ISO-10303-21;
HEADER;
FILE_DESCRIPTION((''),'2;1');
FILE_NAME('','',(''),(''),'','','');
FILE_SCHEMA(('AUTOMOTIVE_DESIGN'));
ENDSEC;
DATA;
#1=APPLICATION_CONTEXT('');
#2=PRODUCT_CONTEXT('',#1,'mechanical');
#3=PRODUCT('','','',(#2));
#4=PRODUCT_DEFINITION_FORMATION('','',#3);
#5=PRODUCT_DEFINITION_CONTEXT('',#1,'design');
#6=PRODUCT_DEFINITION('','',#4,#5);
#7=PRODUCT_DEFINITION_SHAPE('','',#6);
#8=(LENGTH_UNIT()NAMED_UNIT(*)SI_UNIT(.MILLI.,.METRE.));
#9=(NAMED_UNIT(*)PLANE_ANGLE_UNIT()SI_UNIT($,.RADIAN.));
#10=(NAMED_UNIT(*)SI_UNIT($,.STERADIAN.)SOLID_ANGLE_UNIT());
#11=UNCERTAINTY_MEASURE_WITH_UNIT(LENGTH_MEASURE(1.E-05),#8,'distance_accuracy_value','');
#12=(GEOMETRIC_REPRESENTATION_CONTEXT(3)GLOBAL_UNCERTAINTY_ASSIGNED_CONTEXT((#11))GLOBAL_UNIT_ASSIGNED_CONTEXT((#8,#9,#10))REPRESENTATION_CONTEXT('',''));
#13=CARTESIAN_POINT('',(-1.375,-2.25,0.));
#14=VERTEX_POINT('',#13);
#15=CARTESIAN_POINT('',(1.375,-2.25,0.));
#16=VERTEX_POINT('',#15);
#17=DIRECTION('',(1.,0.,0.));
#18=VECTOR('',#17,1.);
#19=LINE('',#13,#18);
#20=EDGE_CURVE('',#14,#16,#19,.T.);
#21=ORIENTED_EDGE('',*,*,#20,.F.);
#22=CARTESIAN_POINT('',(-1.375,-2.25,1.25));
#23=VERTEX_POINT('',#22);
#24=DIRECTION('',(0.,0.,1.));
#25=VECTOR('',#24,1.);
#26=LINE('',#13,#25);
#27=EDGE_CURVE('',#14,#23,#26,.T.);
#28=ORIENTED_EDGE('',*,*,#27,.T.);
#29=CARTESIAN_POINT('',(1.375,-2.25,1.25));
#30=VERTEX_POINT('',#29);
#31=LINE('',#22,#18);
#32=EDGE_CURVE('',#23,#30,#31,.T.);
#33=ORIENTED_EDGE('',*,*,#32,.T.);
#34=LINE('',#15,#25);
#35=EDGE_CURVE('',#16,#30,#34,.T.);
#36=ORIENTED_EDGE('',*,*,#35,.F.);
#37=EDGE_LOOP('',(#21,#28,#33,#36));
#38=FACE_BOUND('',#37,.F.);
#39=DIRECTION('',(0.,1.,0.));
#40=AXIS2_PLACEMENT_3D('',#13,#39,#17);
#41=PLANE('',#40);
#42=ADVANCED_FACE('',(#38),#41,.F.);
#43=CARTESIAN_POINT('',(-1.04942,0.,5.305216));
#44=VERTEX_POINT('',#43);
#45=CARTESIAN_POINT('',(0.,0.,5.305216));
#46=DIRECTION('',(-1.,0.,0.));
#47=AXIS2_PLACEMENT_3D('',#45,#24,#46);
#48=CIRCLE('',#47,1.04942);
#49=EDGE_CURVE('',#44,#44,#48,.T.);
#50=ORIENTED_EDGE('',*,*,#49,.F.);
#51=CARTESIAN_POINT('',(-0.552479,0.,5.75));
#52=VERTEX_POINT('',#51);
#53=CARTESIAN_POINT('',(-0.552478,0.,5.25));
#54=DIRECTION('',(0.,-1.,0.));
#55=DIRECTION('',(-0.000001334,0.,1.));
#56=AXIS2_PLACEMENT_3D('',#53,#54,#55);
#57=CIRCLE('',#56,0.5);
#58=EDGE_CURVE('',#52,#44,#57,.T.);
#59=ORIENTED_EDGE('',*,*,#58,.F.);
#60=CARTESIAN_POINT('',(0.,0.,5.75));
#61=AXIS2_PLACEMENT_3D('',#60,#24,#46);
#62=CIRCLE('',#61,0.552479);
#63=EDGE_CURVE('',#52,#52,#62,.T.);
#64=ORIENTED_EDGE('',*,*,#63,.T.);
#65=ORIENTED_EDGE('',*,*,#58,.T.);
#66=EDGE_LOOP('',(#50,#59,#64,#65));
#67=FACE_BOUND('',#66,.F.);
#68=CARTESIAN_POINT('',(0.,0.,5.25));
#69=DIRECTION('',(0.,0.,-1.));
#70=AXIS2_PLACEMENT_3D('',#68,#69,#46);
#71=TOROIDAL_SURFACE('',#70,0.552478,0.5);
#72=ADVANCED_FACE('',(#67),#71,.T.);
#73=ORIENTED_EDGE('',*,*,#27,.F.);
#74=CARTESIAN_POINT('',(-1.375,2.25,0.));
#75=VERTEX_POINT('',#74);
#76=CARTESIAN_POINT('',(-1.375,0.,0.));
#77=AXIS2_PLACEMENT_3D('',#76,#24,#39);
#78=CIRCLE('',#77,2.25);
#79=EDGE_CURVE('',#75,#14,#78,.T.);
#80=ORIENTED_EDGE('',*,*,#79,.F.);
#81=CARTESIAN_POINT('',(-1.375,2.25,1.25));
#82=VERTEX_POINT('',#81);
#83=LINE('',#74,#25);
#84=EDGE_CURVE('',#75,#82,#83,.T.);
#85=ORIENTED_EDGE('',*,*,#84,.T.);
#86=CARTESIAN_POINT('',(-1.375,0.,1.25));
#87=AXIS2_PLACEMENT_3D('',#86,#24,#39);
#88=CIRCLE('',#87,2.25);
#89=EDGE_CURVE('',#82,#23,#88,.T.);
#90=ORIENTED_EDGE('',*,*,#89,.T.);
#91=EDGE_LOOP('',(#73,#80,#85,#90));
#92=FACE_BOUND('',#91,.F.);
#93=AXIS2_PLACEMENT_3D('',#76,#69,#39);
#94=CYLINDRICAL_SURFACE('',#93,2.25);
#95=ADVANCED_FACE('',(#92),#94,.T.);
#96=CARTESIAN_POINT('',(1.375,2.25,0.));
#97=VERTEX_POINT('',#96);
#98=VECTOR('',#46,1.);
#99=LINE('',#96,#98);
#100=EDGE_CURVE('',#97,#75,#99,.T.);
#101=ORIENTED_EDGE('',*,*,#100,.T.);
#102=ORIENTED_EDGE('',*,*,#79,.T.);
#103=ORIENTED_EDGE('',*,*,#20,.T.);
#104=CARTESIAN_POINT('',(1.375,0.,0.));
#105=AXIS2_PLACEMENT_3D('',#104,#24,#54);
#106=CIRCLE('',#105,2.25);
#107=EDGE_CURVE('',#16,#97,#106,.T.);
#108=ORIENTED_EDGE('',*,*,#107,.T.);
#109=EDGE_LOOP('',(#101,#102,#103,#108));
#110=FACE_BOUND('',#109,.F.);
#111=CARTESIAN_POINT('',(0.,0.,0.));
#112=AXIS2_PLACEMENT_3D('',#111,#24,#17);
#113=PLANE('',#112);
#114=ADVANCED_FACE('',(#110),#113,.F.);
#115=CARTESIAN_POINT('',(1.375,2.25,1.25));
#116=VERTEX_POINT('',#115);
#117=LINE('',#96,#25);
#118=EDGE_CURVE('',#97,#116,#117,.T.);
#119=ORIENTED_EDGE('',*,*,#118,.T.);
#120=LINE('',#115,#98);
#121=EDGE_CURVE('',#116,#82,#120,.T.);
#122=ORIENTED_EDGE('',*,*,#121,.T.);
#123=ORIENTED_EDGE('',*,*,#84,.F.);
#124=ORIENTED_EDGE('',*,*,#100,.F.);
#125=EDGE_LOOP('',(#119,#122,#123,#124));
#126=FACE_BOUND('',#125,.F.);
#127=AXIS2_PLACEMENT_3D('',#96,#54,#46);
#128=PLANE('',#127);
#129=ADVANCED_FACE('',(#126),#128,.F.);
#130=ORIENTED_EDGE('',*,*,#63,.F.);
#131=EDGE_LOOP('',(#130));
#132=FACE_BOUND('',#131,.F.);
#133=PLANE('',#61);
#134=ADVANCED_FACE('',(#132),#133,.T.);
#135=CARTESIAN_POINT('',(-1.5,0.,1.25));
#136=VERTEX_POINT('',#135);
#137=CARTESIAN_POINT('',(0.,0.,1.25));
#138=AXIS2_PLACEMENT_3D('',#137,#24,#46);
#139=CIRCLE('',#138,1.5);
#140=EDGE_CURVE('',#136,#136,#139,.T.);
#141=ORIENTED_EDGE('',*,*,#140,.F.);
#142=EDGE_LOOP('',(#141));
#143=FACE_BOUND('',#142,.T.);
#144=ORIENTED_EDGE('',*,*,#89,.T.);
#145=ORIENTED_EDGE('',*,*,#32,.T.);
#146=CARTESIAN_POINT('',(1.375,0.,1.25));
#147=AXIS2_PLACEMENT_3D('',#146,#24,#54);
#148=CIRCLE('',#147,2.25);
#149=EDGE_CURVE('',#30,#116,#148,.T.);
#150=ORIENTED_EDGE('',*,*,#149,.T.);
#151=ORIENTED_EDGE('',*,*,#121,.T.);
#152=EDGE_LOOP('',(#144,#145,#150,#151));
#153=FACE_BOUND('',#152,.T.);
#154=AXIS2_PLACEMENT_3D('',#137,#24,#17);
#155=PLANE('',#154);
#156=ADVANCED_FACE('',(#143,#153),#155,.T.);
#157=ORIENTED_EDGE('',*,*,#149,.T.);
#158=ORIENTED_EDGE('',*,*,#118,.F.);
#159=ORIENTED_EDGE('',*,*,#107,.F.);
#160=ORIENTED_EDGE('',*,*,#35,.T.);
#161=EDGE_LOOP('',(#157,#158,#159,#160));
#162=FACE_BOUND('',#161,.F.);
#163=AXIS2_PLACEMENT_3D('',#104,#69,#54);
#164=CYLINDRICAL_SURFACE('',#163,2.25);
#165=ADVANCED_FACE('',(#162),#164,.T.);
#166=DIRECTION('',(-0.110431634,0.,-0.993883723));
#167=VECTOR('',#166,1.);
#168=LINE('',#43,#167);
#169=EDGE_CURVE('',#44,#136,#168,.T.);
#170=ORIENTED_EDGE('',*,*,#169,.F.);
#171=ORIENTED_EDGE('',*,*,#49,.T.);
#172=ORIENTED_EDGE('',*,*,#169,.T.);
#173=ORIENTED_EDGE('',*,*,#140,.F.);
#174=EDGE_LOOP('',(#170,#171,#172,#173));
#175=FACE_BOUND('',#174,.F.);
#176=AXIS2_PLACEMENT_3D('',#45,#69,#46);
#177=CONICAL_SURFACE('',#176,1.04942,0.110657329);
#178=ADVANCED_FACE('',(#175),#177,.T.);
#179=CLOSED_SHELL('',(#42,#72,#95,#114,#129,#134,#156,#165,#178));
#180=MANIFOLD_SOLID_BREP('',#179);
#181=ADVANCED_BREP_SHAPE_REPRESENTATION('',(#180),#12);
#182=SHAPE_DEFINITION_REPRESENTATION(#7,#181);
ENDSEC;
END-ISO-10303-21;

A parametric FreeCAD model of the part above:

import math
import FreeCAD as App
import Part
import Sketcher

V = App.Vector

doc = App.newDocument("Part")
body = doc.addObject("PartDesign::Body", "Body")

sketch1 = doc.addObject("Sketcher::SketchObject", "Sketch")
body.addObject(sketch1)
sketch1.AttachmentSupport = (doc.XY_Plane, [""])
sketch1.MapMode = "FlatFace"
sketch1.addGeometry(Part.LineSegment(V(-1.4, -2.2, 0), V(1.4, -2.2, 0)), False)
sketch1.addGeometry(Part.ArcOfCircle(Part.Circle(V(1.4, 0, 0), V(0, 0, 1), 2.2), math.radians(-90), math.radians(90)), False)
sketch1.addGeometry(Part.LineSegment(V(1.4, 2.2, 0), V(-1.4, 2.2, 0)), False)
sketch1.addGeometry(Part.ArcOfCircle(Part.Circle(V(-1.4, 0, 0), V(0, 0, 1), 2.2), math.radians(90), math.radians(270)), False)
sketch1.addConstraint(Sketcher.Constraint("Tangent", 0, 2, 1, 1))
sketch1.addConstraint(Sketcher.Constraint("Tangent", 1, 2, 2, 1))
sketch1.addConstraint(Sketcher.Constraint("Tangent", 2, 2, 3, 1))
sketch1.addConstraint(Sketcher.Constraint("Tangent", 3, 2, 0, 1))
sketch1.addConstraint(Sketcher.Constraint("Horizontal", 0))
sketch1.addConstraint(Sketcher.Constraint("Horizontal", 2))
sketch1.addConstraint(Sketcher.Constraint("Symmetric", 1, 3, 3, 3, -1, 1))
sketch1.addConstraint(Sketcher.Constraint("Radius", 1, 2.25))
sketch1.addConstraint(Sketcher.Constraint("DistanceX", 0, 1, 0, 2, 2.75))
pad1 = doc.addObject("PartDesign::Pad", "Pad")
body.addObject(pad1)
pad1.Profile = sketch1
pad1.Length = 1.25

sketch2 = doc.addObject("Sketcher::SketchObject", "Sketch001")
body.addObject(sketch2)
sketch2.AttachmentSupport = (doc.XZ_Plane, [""])
sketch2.MapMode = "FlatFace"
sketch2.addGeometry(Part.LineSegment(V(-1.5, 1.25, 0), V(0, 1.25, 0)), False)
sketch2.addGeometry(Part.LineSegment(V(0, 1.25, 0), V(0, 5.75, 0)), False)
sketch2.addGeometry(Part.LineSegment(V(0, 5.75, 0), V(-0.55, 5.75, 0)), False)
sketch2.addGeometry(Part.ArcOfCircle(Part.Circle(V(-0.55, 5.25, 0), V(0, 0, 1), 0.5), math.radians(90), math.radians(174)), False)
sketch2.addGeometry(Part.LineSegment(V(-1.05, 5.31, 0), V(-1.5, 1.25, 0)), False)
sketch2.addConstraint(Sketcher.Constraint("Coincident", 0, 2, 1, 1))
sketch2.addConstraint(Sketcher.Constraint("Coincident", 1, 2, 2, 1))
sketch2.addConstraint(Sketcher.Constraint("Tangent", 2, 2, 3, 1))
sketch2.addConstraint(Sketcher.Constraint("Tangent", 3, 2, 4, 1))
sketch2.addConstraint(Sketcher.Constraint("Coincident", 4, 2, 0, 1))
sketch2.addConstraint(Sketcher.Constraint("Horizontal", 0))
sketch2.addConstraint(Sketcher.Constraint("Vertical", 1))
sketch2.addConstraint(Sketcher.Constraint("Horizontal", 2))
sketch2.addConstraint(Sketcher.Constraint("PointOnObject", 0, 2, -2))
sketch2.addConstraint(Sketcher.Constraint("Radius", 3, 0.5))
sketch2.addConstraint(Sketcher.Constraint("DistanceX", 0, 1, 0, 2, 1.5))
sketch2.addConstraint(Sketcher.Constraint("DistanceY", 1, 1, 1, 2, 4.5))
sketch2.addConstraint(Sketcher.Constraint("DistanceY", -1, 1, 3, 3, 5.25))
sketch2.addConstraint(Sketcher.Constraint("DistanceX", 2, 2, 2, 1, 0.552479))
revolution = doc.addObject("PartDesign::Revolution", "Revolution")
body.addObject(revolution)
revolution.Profile = sketch2
revolution.ReferenceAxis = (sketch2, ["V_Axis"])
revolution.Angle = 360

doc.recompute()
